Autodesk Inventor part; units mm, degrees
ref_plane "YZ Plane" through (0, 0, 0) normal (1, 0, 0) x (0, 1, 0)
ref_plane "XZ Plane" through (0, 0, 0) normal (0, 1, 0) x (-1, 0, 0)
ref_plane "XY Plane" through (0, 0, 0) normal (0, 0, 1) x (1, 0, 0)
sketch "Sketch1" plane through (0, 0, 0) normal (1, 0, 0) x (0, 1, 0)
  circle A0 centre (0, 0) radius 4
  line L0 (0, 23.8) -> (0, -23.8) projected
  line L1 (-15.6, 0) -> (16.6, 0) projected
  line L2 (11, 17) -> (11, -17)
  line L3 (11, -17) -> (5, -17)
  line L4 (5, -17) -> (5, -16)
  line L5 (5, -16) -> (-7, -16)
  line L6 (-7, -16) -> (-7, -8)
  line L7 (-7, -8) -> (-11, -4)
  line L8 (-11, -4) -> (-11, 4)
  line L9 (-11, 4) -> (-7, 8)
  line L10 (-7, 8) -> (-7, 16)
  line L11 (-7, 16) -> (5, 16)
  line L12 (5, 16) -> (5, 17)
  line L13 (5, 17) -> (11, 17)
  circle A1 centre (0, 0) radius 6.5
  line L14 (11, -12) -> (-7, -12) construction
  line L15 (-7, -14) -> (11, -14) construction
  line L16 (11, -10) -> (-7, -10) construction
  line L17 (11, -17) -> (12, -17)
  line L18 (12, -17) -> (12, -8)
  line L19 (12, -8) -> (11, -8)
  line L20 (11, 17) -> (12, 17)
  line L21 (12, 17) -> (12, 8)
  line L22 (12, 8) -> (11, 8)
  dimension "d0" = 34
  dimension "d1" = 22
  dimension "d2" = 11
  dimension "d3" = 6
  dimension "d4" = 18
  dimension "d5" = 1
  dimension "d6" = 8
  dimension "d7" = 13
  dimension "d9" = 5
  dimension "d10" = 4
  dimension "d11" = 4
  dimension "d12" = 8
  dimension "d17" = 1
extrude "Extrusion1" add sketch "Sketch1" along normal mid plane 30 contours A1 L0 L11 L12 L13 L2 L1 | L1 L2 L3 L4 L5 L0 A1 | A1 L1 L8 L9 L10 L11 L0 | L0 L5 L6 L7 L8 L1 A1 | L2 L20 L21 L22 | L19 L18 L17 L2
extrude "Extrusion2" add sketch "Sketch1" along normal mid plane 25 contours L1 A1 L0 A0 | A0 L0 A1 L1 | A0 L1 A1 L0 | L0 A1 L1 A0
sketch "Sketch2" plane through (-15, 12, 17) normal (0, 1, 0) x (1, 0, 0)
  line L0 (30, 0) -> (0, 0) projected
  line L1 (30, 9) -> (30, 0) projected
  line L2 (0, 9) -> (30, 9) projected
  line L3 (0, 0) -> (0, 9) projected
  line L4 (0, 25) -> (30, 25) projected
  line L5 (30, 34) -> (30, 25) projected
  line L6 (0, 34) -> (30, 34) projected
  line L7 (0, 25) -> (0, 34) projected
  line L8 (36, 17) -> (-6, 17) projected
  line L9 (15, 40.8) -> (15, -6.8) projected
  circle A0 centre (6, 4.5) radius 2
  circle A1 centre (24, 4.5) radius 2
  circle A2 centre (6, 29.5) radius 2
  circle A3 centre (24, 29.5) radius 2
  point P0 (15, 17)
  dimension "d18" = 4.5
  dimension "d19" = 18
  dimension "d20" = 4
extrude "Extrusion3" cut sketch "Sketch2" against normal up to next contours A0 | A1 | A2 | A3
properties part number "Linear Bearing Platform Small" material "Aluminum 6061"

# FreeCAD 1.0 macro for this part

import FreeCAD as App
import Part
import Sketcher

V = App.Vector
Q = App.Units.Quantity

doc = App.newDocument("Part")
body = doc.addObject("PartDesign::Body", "Body")

# Sketch on YZ plane
sketch1 = body.newObject("Sketcher::SketchObject", "Sketch")
sketch1.AttachmentSupport = (doc.getObject("YZ_Plane"), [""])
sketch1.MapMode = "FlatFace"
sketch1.addGeometry(Part.LineSegment(V(5, 16, 0), V(-7, 16, 0)), False)
sketch1.addGeometry(Part.LineSegment(V(-7, 16, 0), V(-7, 8, 0)), False)
sketch1.addGeometry(Part.LineSegment(V(-7, 8, 0), V(-11, 4, 0)), False)
sketch1.addGeometry(Part.LineSegment(V(-11, 4, 0), V(-11, -4, 0)), False)
sketch1.addGeometry(Part.LineSegment(V(-11, -4, 0), V(-7, -8, 0)), False)
sketch1.addGeometry(Part.LineSegment(V(-7, -8, 0), V(-7, -16, 0)), False)
sketch1.addGeometry(Part.LineSegment(V(-7, -16, 0), V(5, -16, 0)), False)
sketch1.addGeometry(Part.LineSegment(V(5, -16, 0), V(5, -17, 0)), False)
sketch1.addGeometry(Part.LineSegment(V(5, -17, 0), V(12, -17, 0)), False)
sketch1.addGeometry(Part.LineSegment(V(12, -17, 0), V(12, -8, 0)), False)
sketch1.addGeometry(Part.LineSegment(V(12, -8, 0), V(11, -8, 0)), False)
sketch1.addGeometry(Part.LineSegment(V(11, -8, 0), V(11, 8, 0)), False)
sketch1.addGeometry(Part.LineSegment(V(11, 8, 0), V(12, 8, 0)), False)
sketch1.addGeometry(Part.LineSegment(V(12, 8, 0), V(12, 17, 0)), False)
sketch1.addGeometry(Part.LineSegment(V(12, 17, 0), V(5, 17, 0)), False)
sketch1.addGeometry(Part.LineSegment(V(5, 17, 0), V(5, 16, 0)), False)
sketch1.addGeometry(Part.Circle(V(0, 0, 0), V(0, 0, 1), 6.5), False)
sketch1.addConstraint(Sketcher.Constraint("Coincident", 0, 2, 1, 1))
sketch1.addConstraint(Sketcher.Constraint("Coincident", 1, 2, 2, 1))
sketch1.addConstraint(Sketcher.Constraint("Coincident", 2, 2, 3, 1))
sketch1.addConstraint(Sketcher.Constraint("Coincident", 3, 2, 4, 1))
sketch1.addConstraint(Sketcher.Constraint("Coincident", 4, 2, 5, 1))
sketch1.addConstraint(Sketcher.Constraint("Coincident", 5, 2, 6, 1))
sketch1.addConstraint(Sketcher.Constraint("Coincident", 6, 2, 7, 1))
sketch1.addConstraint(Sketcher.Constraint("Coincident", 7, 2, 8, 1))
sketch1.addConstraint(Sketcher.Constraint("Coincident", 8, 2, 9, 1))
sketch1.addConstraint(Sketcher.Constraint("Coincident", 9, 2, 10, 1))
sketch1.addConstraint(Sketcher.Constraint("Coincident", 10, 2, 11, 1))
sketch1.addConstraint(Sketcher.Constraint("Coincident", 11, 2, 12, 1))
sketch1.addConstraint(Sketcher.Constraint("Coincident", 12, 2, 13, 1))
sketch1.addConstraint(Sketcher.Constraint("Coincident", 13, 2, 14, 1))
sketch1.addConstraint(Sketcher.Constraint("Coincident", 14, 2, 15, 1))
sketch1.addConstraint(Sketcher.Constraint("Coincident", 15, 2, 0, 1))
sketch1.addConstraint(Sketcher.Constraint("Horizontal", 0))
sketch1.addConstraint(Sketcher.Constraint("Vertical", 1))
sketch1.addConstraint(Sketcher.Constraint("Vertical", 3))
sketch1.addConstraint(Sketcher.Constraint("Vertical", 5))
sketch1.addConstraint(Sketcher.Constraint("Horizontal", 6))
sketch1.addConstraint(Sketcher.Constraint("Vertical", 7))
sketch1.addConstraint(Sketcher.Constraint("Horizontal", 8))
sketch1.addConstraint(Sketcher.Constraint("Vertical", 9))
sketch1.addConstraint(Sketcher.Constraint("Horizontal", 10))
sketch1.addConstraint(Sketcher.Constraint("Vertical", 11))
sketch1.addConstraint(Sketcher.Constraint("Horizontal", 12))
sketch1.addConstraint(Sketcher.Constraint("Vertical", 13))
sketch1.addConstraint(Sketcher.Constraint("Horizontal", 14))
sketch1.addConstraint(Sketcher.Constraint("Vertical", 15))
sketch1.addConstraint(Sketcher.Constraint("Coincident", 16, 3, -1, 1))
sketch1.addConstraint(Sketcher.Constraint("Symmetric", 1, 2, 4, 2, -1))
sketch1.addConstraint(Sketcher.Constraint("Symmetric", 9, 2, 12, 2, -1))
sketch1.addConstraint(Sketcher.Constraint("Symmetric", 7, 2, 14, 2, -1))
sketch1.addConstraint(Sketcher.Constraint("Perpendicular", 2, 4))
sketch1.addConstraint(Sketcher.Constraint("Horizontal", 4, 2, 9, 2))
sketch1.addConstraint(Sketcher.Constraint("Equal", 1, 3))
sketch1.addConstraint(Sketcher.Constraint("Equal", 3, 5))
sketch1.addConstraint(Sketcher.Constraint("Equal", 12, 7))
sketch1.addConstraint(Sketcher.Constraint("Equal", 2, 4))
sketch1.addConstraint(Sketcher.Constraint("Diameter", 16, Q("13 mm")))
sketch1.addConstraint(Sketcher.Constraint("DistanceX", 10, 2, 10, 1, Q("1 mm")))
sketch1.addConstraint(Sketcher.Constraint("DistanceY", 1, 2, 1, 1, Q("8 mm")))
sketch1.addConstraint(Sketcher.Constraint("DistanceY", -1, 1, 1, 2, Q("8 mm")))
sketch1.addConstraint(Sketcher.Constraint("DistanceX", 2, 2, -1, 1, Q("11 mm")))
sketch1.addConstraint(Sketcher.Constraint("DistanceX", -1, 1, 6, 2, Q("5 mm")))
sketch1.addConstraint(Sketcher.Constraint("DistanceX", -1, 1, 10, 2, Q("11 mm")))
pad1 = body.newObject("PartDesign::Pad", "Pad")
pad1.Profile = sketch1
pad1.Length = 30
pad1.Midplane = True

# Sketch on YZ plane
sketch2 = body.newObject("Sketcher::SketchObject", "Sketch001")
sketch2.AttachmentSupport = (doc.getObject("YZ_Plane"), [""])
sketch2.MapMode = "FlatFace"
sketch2.addGeometry(Part.Circle(V(0, 0, 0), V(0, 0, 1), 6.5), False)
sketch2.addGeometry(Part.Circle(V(0, 0, 0), V(0, 0, 1), 4), False)
sketch2.addConstraint(Sketcher.Constraint("Coincident", 0, 3, -1, 1))
sketch2.addConstraint(Sketcher.Constraint("Coincident", 1, 3, -1, 1))
sketch2.addConstraint(Sketcher.Constraint("Diameter", 0, Q("13 mm")))
sketch2.addConstraint(Sketcher.Constraint("Diameter", 1, Q("8 mm")))
pad2 = body.newObject("PartDesign::Pad", "Pad001")
pad2.Profile = sketch2
pad2.Length = 25
pad2.Midplane = True

# Sketch on XZ plane
sketch3 = body.newObject("Sketcher::SketchObject", "Sketch002")
sketch3.AttachmentSupport = (doc.getObject("XZ_Plane"), [""])
sketch3.MapMode = "FlatFace"
sketch3.AttachmentOffset = App.Placement(V(0, 0, -12), App.Rotation())
sketch3.addGeometry(Part.Circle(V(-9, 12.5, 0), V(0, 0, 1), 2), False)
sketch3.addGeometry(Part.Circle(V(9, 12.5, 0), V(0, 0, 1), 2), False)
sketch3.addGeometry(Part.Circle(V(-9, -12.5, 0), V(0, 0, 1), 2), False)
sketch3.addGeometry(Part.Circle(V(9, -12.5, 0), V(0, 0, 1), 2), False)
sketch3.addConstraint(Sketcher.Constraint("Equal", 0, 1))
sketch3.addConstraint(Sketcher.Constraint("Equal", 1, 2))
sketch3.addConstraint(Sketcher.Constraint("Equal", 2, 3))
sketch3.addConstraint(Sketcher.Constraint("Symmetric", 1, 3, 2, 3, -1, 1))
sketch3.addConstraint(Sketcher.Constraint("Symmetric", 0, 3, 3, 3, -1, 1))
sketch3.addConstraint(Sketcher.Constraint("Symmetric", 0, 3, 1, 3, -2))
sketch3.addConstraint(Sketcher.Constraint("Diameter", 0, Q("4 mm")))
sketch3.addConstraint(Sketcher.Constraint("DistanceX", 0, 3, 1, 3, Q("18 mm")))
sketch3.addConstraint(Sketcher.Constraint("DistanceY", 2, 3, 0, 3, Q("25 mm")))
pocket1 = body.newObject("PartDesign::Pocket", "Pocket")
pocket1.Profile = sketch3
pocket1.Length = 19
pocket1.Reversed = True

doc.recompute()
